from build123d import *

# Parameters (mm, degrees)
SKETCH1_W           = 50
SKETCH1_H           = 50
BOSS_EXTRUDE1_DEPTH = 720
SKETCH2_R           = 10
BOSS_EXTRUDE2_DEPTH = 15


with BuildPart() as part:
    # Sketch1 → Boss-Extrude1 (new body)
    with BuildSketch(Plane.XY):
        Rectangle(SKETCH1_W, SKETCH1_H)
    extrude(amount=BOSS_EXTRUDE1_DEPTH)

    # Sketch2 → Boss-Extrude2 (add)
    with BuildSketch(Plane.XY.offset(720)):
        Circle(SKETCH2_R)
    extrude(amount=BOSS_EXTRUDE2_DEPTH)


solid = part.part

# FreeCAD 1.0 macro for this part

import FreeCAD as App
import Part
import Sketcher


def add_polygon(sketch, points):
    """Adds a closed chain of lines whose ends are joined by coincident constraints."""
    first, n = sketch.GeometryCount, len(points)
    for a, b in zip(points, points[1:] + points[:1]):
        sketch.addGeometry(Part.LineSegment(App.Vector(*a, 0), App.Vector(*b, 0)), False)
    for i in range(n):
        sketch.addConstraint(Sketcher.Constraint("Coincident", first + i, 2, first + (i + 1) % n, 1))

doc = App.newDocument("Part")
body = doc.addObject("PartDesign::Body", "Body")

# Sketch on XY plane
sketch1 = body.newObject("Sketcher::SketchObject", "Sketch")
sketch1.AttachmentSupport = (doc.getObject("XY_Plane"), [""])
sketch1.MapMode = "FlatFace"
add_polygon(sketch1, [(-25, 25), (-25, -25), (25, -25), (25, 25)])  # lines 0-3
sketch1.addConstraint([
    Sketcher.Constraint("Vertical", 0),
    Sketcher.Constraint("Horizontal", 1),
    Sketcher.Constraint("Vertical", 2),
    Sketcher.Constraint("Horizontal", 3),
    Sketcher.Constraint("Symmetric", 0, 2, 2, 2, -1, 1),
    Sketcher.Constraint("Equal", 3, 0),
    Sketcher.Constraint("DistanceX", 1, 1, 1, 2, 50.0),
])
pad1 = body.newObject("PartDesign::Pad", "Pad")
pad1.Profile = sketch1
pad1.Length = 720

# Sketch on XY plane
sketch2 = body.newObject("Sketcher::SketchObject", "Sketch001")
sketch2.AttachmentSupport = (doc.getObject("XY_Plane"), [""])
sketch2.MapMode = "FlatFace"
sketch2.AttachmentOffset = App.Placement(App.Vector(0, 0, 720), App.Rotation())
sketch2.addGeometry(Part.Circle(App.Vector(0, 0, 0), App.Vector(0, 0, 1), 10), False)
sketch2.addConstraint([
    Sketcher.Constraint("Coincident", 0, 3, -1, 1),
    Sketcher.Constraint("Diameter", 0, 20.0),
])
pad2 = body.newObject("PartDesign::Pad", "Pad001")
pad2.Profile = sketch2
pad2.Length = 15

doc.recompute()
